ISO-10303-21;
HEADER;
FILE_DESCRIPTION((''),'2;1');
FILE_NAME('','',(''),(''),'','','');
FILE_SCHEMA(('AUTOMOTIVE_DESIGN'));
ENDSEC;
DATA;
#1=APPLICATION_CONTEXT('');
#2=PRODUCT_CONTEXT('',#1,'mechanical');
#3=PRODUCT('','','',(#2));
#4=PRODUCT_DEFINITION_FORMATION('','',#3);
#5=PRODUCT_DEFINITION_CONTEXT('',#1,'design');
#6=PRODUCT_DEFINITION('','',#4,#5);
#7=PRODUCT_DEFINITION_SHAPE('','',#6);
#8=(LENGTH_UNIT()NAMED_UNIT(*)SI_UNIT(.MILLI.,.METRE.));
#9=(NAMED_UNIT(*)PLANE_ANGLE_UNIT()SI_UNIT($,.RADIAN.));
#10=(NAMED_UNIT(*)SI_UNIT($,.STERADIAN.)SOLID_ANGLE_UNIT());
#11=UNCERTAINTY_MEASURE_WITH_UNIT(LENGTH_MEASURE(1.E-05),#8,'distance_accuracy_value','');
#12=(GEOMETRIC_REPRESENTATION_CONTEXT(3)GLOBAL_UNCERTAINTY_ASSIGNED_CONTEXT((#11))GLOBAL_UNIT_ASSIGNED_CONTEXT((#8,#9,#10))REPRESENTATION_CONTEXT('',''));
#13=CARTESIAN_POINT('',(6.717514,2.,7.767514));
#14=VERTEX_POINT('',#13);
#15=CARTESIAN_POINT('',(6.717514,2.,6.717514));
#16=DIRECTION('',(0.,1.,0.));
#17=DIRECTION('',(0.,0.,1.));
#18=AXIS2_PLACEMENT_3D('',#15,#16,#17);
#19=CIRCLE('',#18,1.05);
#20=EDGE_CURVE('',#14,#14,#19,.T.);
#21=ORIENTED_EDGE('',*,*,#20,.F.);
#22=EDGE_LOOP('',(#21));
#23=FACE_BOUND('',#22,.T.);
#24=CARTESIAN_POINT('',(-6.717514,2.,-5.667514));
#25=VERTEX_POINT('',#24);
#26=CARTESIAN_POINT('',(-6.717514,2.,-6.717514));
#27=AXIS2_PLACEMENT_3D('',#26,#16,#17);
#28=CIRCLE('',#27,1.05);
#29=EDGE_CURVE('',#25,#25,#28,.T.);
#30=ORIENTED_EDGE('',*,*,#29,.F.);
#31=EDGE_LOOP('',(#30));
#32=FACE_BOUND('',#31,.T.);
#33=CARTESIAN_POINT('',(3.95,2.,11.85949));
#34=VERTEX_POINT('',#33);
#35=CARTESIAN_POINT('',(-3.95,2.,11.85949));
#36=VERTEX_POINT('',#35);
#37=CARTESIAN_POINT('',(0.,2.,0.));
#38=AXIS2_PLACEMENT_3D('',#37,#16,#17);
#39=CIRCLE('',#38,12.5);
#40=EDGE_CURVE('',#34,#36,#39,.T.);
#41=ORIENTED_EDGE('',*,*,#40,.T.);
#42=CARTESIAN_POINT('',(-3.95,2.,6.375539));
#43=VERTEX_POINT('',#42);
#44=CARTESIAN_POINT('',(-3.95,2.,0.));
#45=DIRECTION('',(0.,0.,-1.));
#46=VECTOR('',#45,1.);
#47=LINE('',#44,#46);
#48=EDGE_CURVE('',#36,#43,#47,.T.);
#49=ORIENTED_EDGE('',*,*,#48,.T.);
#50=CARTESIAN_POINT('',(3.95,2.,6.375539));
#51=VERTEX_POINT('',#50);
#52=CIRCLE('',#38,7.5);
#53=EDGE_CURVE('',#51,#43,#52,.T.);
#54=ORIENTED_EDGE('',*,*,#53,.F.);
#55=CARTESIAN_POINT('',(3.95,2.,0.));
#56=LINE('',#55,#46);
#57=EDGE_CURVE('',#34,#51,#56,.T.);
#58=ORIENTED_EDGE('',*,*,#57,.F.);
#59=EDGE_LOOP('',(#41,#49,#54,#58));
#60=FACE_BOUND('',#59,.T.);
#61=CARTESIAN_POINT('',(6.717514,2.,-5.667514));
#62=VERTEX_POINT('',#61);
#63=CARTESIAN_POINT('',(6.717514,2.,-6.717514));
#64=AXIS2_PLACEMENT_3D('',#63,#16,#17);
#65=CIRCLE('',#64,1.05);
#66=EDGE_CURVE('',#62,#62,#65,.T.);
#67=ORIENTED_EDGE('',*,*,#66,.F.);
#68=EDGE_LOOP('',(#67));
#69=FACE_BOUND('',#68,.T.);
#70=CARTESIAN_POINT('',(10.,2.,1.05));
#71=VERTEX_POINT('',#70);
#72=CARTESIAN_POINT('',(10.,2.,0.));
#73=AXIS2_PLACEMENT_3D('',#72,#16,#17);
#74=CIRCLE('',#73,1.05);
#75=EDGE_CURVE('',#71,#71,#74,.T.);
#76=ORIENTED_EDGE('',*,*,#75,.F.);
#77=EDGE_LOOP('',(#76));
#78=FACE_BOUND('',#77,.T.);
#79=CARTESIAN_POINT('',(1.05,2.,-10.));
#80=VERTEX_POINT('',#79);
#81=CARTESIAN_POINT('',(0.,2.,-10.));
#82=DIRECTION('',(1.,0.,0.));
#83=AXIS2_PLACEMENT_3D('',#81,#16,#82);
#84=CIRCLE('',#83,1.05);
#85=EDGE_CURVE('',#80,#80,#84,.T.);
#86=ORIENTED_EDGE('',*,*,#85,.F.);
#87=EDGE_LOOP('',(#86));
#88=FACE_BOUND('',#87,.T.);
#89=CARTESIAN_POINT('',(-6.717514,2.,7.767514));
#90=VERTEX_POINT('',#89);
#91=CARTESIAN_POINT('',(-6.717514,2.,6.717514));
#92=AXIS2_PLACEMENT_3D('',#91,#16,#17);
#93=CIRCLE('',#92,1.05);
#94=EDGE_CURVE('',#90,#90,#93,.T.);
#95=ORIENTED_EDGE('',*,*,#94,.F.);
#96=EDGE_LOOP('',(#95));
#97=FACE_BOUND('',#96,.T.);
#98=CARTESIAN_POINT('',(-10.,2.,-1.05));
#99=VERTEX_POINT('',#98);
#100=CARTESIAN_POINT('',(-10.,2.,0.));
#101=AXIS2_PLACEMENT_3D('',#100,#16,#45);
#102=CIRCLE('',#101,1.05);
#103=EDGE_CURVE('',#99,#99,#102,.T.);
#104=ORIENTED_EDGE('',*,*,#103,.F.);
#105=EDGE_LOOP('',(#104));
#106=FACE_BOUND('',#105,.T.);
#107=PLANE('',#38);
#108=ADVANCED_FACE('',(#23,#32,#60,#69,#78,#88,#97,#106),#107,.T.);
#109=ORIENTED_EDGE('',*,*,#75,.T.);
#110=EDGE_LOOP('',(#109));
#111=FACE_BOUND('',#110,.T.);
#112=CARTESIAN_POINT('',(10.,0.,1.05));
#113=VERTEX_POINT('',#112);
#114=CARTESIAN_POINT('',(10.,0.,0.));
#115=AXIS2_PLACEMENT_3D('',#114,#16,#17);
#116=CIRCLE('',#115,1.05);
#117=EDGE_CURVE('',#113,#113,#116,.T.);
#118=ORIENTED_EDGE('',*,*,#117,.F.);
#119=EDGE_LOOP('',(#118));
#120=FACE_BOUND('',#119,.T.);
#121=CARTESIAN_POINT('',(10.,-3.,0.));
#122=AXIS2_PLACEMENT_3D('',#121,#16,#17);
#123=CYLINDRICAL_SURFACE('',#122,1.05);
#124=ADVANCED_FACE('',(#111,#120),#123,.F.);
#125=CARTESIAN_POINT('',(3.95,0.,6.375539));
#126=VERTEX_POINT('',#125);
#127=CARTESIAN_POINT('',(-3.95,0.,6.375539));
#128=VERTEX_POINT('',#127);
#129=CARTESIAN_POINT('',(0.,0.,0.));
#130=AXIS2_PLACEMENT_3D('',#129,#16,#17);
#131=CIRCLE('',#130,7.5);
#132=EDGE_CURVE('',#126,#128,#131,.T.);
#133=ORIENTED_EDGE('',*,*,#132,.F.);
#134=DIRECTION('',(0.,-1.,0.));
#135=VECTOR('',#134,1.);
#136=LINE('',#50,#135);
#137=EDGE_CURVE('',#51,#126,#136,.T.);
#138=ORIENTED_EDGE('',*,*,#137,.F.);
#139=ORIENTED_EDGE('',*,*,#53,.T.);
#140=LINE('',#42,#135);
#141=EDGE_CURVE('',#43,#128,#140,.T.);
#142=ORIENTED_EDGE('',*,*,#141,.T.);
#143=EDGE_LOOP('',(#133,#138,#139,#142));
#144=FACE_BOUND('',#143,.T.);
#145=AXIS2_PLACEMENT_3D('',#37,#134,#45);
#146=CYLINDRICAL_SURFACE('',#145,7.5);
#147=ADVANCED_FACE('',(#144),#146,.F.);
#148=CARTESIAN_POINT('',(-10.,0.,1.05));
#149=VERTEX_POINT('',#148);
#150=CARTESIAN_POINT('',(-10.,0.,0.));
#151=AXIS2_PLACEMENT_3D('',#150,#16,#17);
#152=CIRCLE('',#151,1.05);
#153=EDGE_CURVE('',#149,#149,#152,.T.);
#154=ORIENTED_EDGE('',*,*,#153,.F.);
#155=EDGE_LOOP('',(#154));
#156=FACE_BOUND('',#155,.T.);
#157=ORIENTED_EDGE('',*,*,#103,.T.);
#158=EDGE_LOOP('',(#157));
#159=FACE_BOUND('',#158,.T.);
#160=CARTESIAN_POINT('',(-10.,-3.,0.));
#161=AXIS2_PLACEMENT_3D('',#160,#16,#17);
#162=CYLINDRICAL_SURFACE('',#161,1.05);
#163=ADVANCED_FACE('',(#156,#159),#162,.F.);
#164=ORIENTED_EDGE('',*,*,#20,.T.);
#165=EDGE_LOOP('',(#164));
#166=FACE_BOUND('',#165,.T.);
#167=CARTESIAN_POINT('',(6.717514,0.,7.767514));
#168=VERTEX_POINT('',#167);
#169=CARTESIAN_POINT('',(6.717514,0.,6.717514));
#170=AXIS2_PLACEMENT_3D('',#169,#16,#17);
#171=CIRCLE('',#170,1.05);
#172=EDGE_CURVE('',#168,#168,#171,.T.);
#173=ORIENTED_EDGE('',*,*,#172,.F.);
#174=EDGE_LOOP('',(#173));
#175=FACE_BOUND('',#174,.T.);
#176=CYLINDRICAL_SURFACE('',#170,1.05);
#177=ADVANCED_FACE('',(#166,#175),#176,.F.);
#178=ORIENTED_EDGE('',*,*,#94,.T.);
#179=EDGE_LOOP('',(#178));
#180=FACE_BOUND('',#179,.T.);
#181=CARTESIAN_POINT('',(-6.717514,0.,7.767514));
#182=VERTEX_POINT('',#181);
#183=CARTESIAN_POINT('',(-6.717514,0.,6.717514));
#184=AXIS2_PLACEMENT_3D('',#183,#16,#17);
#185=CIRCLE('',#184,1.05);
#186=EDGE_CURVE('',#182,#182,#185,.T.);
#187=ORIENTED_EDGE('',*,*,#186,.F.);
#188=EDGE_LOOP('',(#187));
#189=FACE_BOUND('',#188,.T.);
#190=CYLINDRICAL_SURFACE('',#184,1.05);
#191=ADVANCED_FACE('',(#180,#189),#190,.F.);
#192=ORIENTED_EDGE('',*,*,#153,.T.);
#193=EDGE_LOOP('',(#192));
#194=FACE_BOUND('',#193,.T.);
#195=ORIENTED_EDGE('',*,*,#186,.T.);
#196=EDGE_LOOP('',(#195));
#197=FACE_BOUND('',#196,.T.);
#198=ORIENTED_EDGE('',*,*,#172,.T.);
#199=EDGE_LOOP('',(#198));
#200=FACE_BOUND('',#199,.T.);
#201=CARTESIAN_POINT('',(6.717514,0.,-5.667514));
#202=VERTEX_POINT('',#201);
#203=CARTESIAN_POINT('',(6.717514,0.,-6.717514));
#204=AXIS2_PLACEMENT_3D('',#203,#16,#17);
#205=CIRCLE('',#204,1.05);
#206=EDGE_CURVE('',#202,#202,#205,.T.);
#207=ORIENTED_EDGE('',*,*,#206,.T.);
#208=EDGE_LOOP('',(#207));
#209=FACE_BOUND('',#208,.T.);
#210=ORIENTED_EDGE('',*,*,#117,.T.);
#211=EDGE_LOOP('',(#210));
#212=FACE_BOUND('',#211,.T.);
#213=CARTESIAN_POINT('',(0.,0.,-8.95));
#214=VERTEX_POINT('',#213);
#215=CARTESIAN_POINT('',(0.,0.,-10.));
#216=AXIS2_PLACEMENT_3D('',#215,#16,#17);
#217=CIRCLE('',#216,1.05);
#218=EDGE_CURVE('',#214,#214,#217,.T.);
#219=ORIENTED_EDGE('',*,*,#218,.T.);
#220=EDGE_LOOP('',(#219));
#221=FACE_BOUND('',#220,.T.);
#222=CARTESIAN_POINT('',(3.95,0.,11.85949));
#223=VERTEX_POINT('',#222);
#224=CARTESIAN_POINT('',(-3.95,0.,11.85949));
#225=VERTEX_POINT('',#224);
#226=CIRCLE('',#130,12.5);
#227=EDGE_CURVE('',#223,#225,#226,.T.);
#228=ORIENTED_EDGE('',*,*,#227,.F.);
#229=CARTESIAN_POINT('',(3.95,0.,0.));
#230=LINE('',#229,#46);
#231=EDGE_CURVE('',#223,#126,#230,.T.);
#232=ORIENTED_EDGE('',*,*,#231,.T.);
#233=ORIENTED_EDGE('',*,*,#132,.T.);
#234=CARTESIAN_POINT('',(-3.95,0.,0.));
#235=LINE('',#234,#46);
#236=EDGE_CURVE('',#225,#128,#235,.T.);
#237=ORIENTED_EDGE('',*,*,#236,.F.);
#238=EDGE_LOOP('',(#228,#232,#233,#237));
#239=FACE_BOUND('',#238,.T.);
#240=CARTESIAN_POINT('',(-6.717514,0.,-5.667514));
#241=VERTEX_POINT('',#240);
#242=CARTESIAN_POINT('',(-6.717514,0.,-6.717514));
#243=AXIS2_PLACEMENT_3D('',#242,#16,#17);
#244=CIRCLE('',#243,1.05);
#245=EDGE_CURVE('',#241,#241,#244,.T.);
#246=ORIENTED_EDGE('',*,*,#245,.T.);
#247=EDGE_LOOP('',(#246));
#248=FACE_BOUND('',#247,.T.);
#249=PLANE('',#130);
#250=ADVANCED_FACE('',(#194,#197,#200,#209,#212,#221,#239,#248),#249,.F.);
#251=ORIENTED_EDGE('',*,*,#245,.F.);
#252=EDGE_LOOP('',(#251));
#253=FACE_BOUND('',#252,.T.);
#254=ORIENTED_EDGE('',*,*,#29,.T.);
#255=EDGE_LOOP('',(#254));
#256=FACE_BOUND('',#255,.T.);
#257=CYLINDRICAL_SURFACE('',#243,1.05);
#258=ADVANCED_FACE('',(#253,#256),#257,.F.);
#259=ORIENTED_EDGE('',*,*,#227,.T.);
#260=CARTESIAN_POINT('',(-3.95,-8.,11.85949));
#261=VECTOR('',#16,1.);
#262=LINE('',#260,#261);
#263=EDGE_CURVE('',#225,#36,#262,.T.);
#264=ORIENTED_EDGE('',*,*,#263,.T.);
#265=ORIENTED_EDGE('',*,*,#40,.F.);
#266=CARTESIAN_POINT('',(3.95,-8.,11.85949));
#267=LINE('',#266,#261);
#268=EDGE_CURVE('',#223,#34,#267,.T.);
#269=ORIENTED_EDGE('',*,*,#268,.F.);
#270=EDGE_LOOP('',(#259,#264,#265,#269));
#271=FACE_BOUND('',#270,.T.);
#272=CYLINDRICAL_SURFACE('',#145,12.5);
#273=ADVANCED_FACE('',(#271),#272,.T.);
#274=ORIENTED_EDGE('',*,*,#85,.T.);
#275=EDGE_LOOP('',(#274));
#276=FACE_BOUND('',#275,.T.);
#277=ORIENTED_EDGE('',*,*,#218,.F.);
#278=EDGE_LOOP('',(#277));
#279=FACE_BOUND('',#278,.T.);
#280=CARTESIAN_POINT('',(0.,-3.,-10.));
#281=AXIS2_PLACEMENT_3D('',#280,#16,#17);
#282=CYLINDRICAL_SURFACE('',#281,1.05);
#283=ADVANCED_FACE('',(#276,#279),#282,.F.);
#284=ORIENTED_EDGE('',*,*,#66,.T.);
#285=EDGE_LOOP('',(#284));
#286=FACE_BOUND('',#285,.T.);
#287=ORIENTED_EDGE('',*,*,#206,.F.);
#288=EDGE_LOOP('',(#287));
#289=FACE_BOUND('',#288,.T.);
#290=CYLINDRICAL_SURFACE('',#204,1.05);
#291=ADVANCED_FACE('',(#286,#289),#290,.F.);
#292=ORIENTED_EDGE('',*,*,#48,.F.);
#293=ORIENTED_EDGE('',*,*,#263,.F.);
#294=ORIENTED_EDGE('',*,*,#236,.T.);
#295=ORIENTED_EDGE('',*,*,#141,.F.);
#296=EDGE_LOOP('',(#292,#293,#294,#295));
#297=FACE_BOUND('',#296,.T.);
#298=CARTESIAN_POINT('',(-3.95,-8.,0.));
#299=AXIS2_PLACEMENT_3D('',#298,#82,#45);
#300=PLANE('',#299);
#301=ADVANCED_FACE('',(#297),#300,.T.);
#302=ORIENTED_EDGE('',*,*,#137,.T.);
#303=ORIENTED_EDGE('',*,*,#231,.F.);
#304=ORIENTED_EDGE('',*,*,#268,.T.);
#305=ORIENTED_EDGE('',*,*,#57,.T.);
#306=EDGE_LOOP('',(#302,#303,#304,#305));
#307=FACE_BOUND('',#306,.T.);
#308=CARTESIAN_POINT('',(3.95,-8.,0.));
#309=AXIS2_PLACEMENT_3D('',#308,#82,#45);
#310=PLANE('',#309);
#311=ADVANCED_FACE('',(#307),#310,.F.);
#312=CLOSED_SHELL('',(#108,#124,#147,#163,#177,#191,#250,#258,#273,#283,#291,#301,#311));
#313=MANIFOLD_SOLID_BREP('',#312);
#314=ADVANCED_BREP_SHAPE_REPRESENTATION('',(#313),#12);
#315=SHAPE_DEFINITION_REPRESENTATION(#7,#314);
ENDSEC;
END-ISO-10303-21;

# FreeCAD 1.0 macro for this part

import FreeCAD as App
import Part
import Sketcher

V = App.Vector
Q = App.Units.Quantity

doc = App.newDocument("Part")
body = doc.addObject("PartDesign::Body", "Body")

sketch1 = doc.addObject("Sketcher::SketchObject", "Sketch")
body.addObject(sketch1)
sketch1.AttachmentSupport = (doc.XZ_Plane, [""])
sketch1.MapMode = "FlatFace"
sketch1.addGeometry([
    Part.Circle(V(0, 0, 0), V(0, 0, 1), 12.5),
    Part.Circle(V(0, 0, 0), V(0, 0, 1), 7.5),
], False)
sketch1.addConstraint([
    Sketcher.Constraint("Coincident", 0, 3, -1, 1),
    Sketcher.Constraint("Coincident", 1, 3, -1, 1),
    Sketcher.Constraint("Diameter", 0, Q("25 mm")),
    Sketcher.Constraint("Diameter", 1, Q("15 mm")),
])
pad1 = doc.addObject("PartDesign::Pad", "Pad")
body.addObject(pad1)
pad1.Profile = sketch1
pad1.Length = 2
pad1.Reversed = True

sketch2 = doc.addObject("Sketcher::SketchObject", "Sketch001")
body.addObject(sketch2)
sketch2.AttachmentSupport = (doc.XZ_Plane, [""])
sketch2.MapMode = "FlatFace"
sketch2.AttachmentOffset = App.Placement(V(0, 0, -2), App.Rotation())
sketch2.addGeometry(Part.Circle(V(10, 0, 0), V(0, 0, 1), 1.05), False)
sketch2.addConstraint([
    Sketcher.Constraint("PointOnObject", 0, 3, -1),
    Sketcher.Constraint("Diameter", 0, Q("2.1 mm")),
    Sketcher.Constraint("DistanceX", -1, 1, 0, 3, Q("10 mm")),
])
pocket1 = doc.addObject("PartDesign::Pocket", "Pocket")
body.addObject(pocket1)
pocket1.Profile = sketch2
pocket1.Length = 5
pocket1.Reversed = True
doc.recompute()

polarpattern = doc.addObject("PartDesign::PolarPattern", "PolarPattern")
body.addObject(polarpattern)
polarpattern.Originals = [pocket1]
polarpattern.Axis = (doc.Y_Axis, [""])
polarpattern.Angle = 180
polarpattern.Occurrences = 3
body.Tip = polarpattern

sketch3 = doc.addObject("Sketcher::SketchObject", "Sketch002")
body.addObject(sketch3)
sketch3.AttachmentSupport = (doc.XZ_Plane, [""])
sketch3.MapMode = "FlatFace"
sketch3.AttachmentOffset = App.Placement(V(0, 0, -2), App.Rotation())
sketch3.addGeometry([
    Part.Circle(V(-6.717514, -6.717514, 0), V(0, 0, 1), 1.05),
    Part.Circle(V(6.717514, -6.717514, 0), V(0, 0, 1), 1.05),
    Part.Circle(V(6.717514, 6.717514, 0), V(0, 0, 1), 1.05),
    Part.Circle(V(-6.717514, 6.717514, 0), V(0, 0, 1), 1.05),
], False)
sketch3.addConstraint([
    Sketcher.Constraint("Equal", 0, 1),
    Sketcher.Constraint("Equal", 1, 2),
    Sketcher.Constraint("Equal", 2, 3),
    Sketcher.Constraint("Symmetric", 0, 3, 2, 3, -1, 1),
    Sketcher.Constraint("Symmetric", 1, 3, 3, 3, -1, 1),
    Sketcher.Constraint("Symmetric", 0, 3, 1, 3, -2),
    Sketcher.Constraint("Diameter", 0, Q("2.1 mm")),
    Sketcher.Constraint("DistanceX", 0, 3, 1, 3, Q("13.435029 mm")),
    Sketcher.Constraint("DistanceY", 1, 3, 2, 3, Q("13.435029 mm")),
])
pocket2 = doc.addObject("PartDesign::Pocket", "Pocket001")
body.addObject(pocket2)
pocket2.Profile = sketch3
pocket2.Length = 2
pocket2.Reversed = True

sketch4 = doc.addObject("Sketcher::SketchObject", "Sketch003")
body.addObject(sketch4)
sketch4.AttachmentSupport = (doc.XZ_Plane, [""])
sketch4.MapMode = "FlatFace"
sketch4.AttachmentOffset = App.Placement(V(0, 0, -2), App.Rotation())
sketch4.addGeometry([
    Part.LineSegment(V(-3.95, 4.590098, 0), V(-3.95, 15.936409, 0)),
    Part.LineSegment(V(-3.95, 15.936409, 0), V(3.95, 15.936409, 0)),
    Part.LineSegment(V(3.95, 15.936409, 0), V(3.95, 4.590098, 0)),
    Part.LineSegment(V(3.95, 4.590098, 0), V(-3.95, 4.590098, 0)),
], False)
sketch4.addConstraint([
    Sketcher.Constraint("Coincident", 0, 2, 1, 1),
    Sketcher.Constraint("Coincident", 1, 2, 2, 1),
    Sketcher.Constraint("Coincident", 2, 2, 3, 1),
    Sketcher.Constraint("Coincident", 3, 2, 0, 1),
    Sketcher.Constraint("Vertical", 0),
    Sketcher.Constraint("Horizontal", 1),
    Sketcher.Constraint("Vertical", 2),
    Sketcher.Constraint("Horizontal", 3),
    Sketcher.Constraint("DistanceX", 1, 1, 1, 2, Q("7.9 mm")),
    Sketcher.Constraint("DistanceX", 0, 2, -1, 1, Q("3.95 mm")),
    Sketcher.Constraint("DistanceY", 0, 1, 0, 2, Q("11.346311 mm")),
    Sketcher.Constraint("DistanceY", -1, 1, 2, 2, Q("4.590098 mm")),
])
pocket3 = doc.addObject("PartDesign::Pocket", "Pocket002")
body.addObject(pocket3)
pocket3.Profile = sketch4
pocket3.Length = 10
pocket3.Reversed = True

doc.recompute()
